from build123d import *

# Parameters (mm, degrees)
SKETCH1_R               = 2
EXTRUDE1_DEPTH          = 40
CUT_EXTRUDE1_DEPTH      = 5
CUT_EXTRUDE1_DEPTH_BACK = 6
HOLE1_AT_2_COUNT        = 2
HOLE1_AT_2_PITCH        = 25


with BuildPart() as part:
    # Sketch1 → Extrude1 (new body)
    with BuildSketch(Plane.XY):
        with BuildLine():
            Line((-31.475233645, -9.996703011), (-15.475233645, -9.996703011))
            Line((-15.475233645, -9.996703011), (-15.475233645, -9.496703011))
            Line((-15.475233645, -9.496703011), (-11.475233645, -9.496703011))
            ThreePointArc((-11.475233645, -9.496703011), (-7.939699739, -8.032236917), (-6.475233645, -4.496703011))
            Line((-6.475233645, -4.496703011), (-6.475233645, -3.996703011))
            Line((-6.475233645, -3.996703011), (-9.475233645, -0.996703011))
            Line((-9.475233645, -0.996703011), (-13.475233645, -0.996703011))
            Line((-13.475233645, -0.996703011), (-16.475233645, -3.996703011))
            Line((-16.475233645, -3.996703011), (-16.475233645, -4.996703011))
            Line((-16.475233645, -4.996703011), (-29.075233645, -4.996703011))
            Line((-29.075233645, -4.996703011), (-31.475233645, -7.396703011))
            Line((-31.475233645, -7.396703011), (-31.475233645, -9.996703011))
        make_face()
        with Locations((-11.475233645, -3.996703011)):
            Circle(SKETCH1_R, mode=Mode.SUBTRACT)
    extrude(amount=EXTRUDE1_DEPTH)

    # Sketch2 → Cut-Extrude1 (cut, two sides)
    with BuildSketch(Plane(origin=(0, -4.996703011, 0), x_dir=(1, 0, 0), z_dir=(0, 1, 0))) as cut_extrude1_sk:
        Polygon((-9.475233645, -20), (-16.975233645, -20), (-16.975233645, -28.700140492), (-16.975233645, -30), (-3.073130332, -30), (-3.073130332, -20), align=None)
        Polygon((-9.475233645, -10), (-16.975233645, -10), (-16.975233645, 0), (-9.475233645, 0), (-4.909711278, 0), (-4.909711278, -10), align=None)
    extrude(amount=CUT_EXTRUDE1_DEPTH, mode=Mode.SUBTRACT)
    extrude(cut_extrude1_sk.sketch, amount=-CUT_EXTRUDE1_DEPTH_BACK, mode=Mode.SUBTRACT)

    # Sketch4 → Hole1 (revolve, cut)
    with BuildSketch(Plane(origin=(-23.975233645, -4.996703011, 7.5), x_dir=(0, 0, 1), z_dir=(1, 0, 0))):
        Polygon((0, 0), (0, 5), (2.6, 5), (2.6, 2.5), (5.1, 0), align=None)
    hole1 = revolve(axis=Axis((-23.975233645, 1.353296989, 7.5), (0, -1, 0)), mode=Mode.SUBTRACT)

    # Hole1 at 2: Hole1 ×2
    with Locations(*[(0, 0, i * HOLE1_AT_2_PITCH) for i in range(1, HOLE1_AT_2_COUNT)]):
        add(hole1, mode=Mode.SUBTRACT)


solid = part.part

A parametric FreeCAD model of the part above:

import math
import FreeCAD as App
import Part
import Sketcher

V = App.Vector
Q = App.Units.Quantity

doc = App.newDocument("Part")
body = doc.addObject("PartDesign::Body", "Body")

# Sketch on XY plane
sketch1 = body.newObject("Sketcher::SketchObject", "Sketch")
sketch1.AttachmentSupport = (doc.getObject("XY_Plane"), [""])
sketch1.MapMode = "FlatFace"
sketch1.addGeometry([
    Part.LineSegment(V(-31.5, -10, 0), V(-15.5, -10, 0)),  # 0
    Part.LineSegment(V(-15.5, -10, 0), V(-15.5, -9.5, 0)),  # 1
    Part.LineSegment(V(-15.5, -9.5, 0), V(-11.5, -9.5, 0)),  # 2
    Part.ArcOfCircle(Part.Circle(V(-11.5, -4.5, 0), V(0, 0, 1), 5), math.radians(-90), math.radians(0)),  # 3
    Part.LineSegment(V(-6.5, -4.5, 0), V(-6.5, -4, 0)),  # 4
    Part.LineSegment(V(-6.5, -4, 0), V(-9.5, -1, 0)),  # 5
    Part.LineSegment(V(-9.5, -1, 0), V(-13.5, -1, 0)),  # 6
    Part.LineSegment(V(-13.5, -1, 0), V(-16.5, -4, 0)),  # 7
    Part.LineSegment(V(-16.5, -4, 0), V(-16.5, -5, 0)),  # 8
    Part.LineSegment(V(-16.5, -5, 0), V(-29.1, -5, 0)),  # 9
    Part.LineSegment(V(-29.1, -5, 0), V(-31.5, -7.4, 0)),  # 10
    Part.LineSegment(V(-31.5, -7.4, 0), V(-31.5, -10, 0)),  # 11
    Part.Circle(V(-11.5, -4, 0), V(0, 0, 1), 2),  # 12
], False)
sketch1.addConstraint([
    Sketcher.Constraint("Coincident", 0, 2, 1, 1),
    Sketcher.Constraint("Coincident", 1, 2, 2, 1),
    Sketcher.Constraint("Tangent", 2, 2, 3, 1),
    Sketcher.Constraint("Tangent", 3, 2, 4, 1),
    Sketcher.Constraint("Coincident", 4, 2, 5, 1),
    Sketcher.Constraint("Coincident", 5, 2, 6, 1),
    Sketcher.Constraint("Coincident", 6, 2, 7, 1),
    Sketcher.Constraint("Coincident", 7, 2, 8, 1),
    Sketcher.Constraint("Coincident", 8, 2, 9, 1),
    Sketcher.Constraint("Coincident", 9, 2, 10, 1),
    Sketcher.Constraint("Coincident", 10, 2, 11, 1),
    Sketcher.Constraint("Coincident", 11, 2, 0, 1),
    Sketcher.Constraint("Horizontal", 0),
    Sketcher.Constraint("Vertical", 1),
    Sketcher.Constraint("Horizontal", 2),
    Sketcher.Constraint("Vertical", 4),
    Sketcher.Constraint("Horizontal", 6),
    Sketcher.Constraint("Vertical", 8),
    Sketcher.Constraint("Horizontal", 9),
    Sketcher.Constraint("Vertical", 11),
    Sketcher.Constraint("Perpendicular", 5, 7),
    Sketcher.Constraint("Parallel", 7, 10),
    Sketcher.Constraint("Horizontal", 12, 3, 4, 2),
    Sketcher.Constraint("Horizontal", 4, 2, 7, 2),
    Sketcher.Constraint("Vertical", 3, 3, 12, 3),
    Sketcher.Constraint("Equal", 2, 6),
    Sketcher.Constraint("Equal", 1, 4),
    Sketcher.Constraint("Equal", 5, 7),
    Sketcher.Constraint("Diameter", 12, 4.0),
    Sketcher.Constraint("Radius", 3, 5.0),
    Sketcher.Constraint("DistanceX", 0, 1, 0, 2, 16.0),
    Sketcher.Constraint("DistanceX", 2, 1, 2, 2, 4.0),
    Sketcher.Constraint("DistanceY", 8, 2, 8, 1, 1.0),
    Sketcher.Constraint("DistanceX", 9, 2, 9, 1, 12.6),
    Sketcher.Constraint("DistanceY", 1, 1, 1, 2, 0.5),
    Sketcher.Constraint("DistanceY", 11, 2, 11, 1, 2.6),
    Sketcher.Constraint("DistanceX", 3, 3, -1, 1, 11.475234),
    Sketcher.Constraint("DistanceY", 3, 3, -1, 1, 4.496703),
])
pad1 = body.newObject("PartDesign::Pad", "Pad")
pad1.Profile = sketch1
pad1.Length = 40

# Sketch on XZ plane
sketch2 = body.newObject("Sketcher::SketchObject", "Sketch001")
sketch2.AttachmentSupport = (doc.getObject("XZ_Plane"), [""])
sketch2.MapMode = "FlatFace"
sketch2.AttachmentOffset = App.Placement(V(0, 0, 4.996703), App.Rotation())
sketch2.addGeometry([
    Part.LineSegment(V(-17, 20, 0), V(-17, 30, 0)),  # 0
    Part.LineSegment(V(-17, 30, 0), V(-3, 30, 0)),  # 1
    Part.LineSegment(V(-3, 30, 0), V(-3, 20, 0)),  # 2
    Part.LineSegment(V(-3, 20, 0), V(-17, 20, 0)),  # 3
    Part.LineSegment(V(-17, 10, 0), V(-5, 10, 0)),  # 4
    Part.LineSegment(V(-5, 10, 0), V(-5, 0, 0)),  # 5
    Part.LineSegment(V(-5, 0, 0), V(-17, 0, 0)),  # 6
    Part.LineSegment(V(-17, 0, 0), V(-17, 10, 0)),  # 7
], False)
sketch2.addConstraint([
    Sketcher.Constraint("Coincident", 0, 2, 1, 1),
    Sketcher.Constraint("Coincident", 1, 2, 2, 1),
    Sketcher.Constraint("Coincident", 2, 2, 3, 1),
    Sketcher.Constraint("Coincident", 3, 2, 0, 1),
    Sketcher.Constraint("Coincident", 4, 2, 5, 1),
    Sketcher.Constraint("Coincident", 5, 2, 6, 1),
    Sketcher.Constraint("Coincident", 6, 2, 7, 1),
    Sketcher.Constraint("Coincident", 7, 2, 4, 1),
    Sketcher.Constraint("Vertical", 0),
    Sketcher.Constraint("Horizontal", 1),
    Sketcher.Constraint("Vertical", 2),
    Sketcher.Constraint("Horizontal", 3),
    Sketcher.Constraint("Horizontal", 4),
    Sketcher.Constraint("Vertical", 5),
    Sketcher.Constraint("Horizontal", 6),
    Sketcher.Constraint("Vertical", 7),
    Sketcher.Constraint("PointOnObject", 5, 2, -1),
    Sketcher.Constraint("Vertical", 3, 2, 6, 2),
    Sketcher.Constraint("Equal", 2, 5),
    Sketcher.Constraint("DistanceY", 0, 1, 0, 2, 10.0),
    Sketcher.Constraint("DistanceY", -1, 1, 0, 2, 30.0),
    Sketcher.Constraint("DistanceX", 1, 1, 1, 2, 13.902103),
    Sketcher.Constraint("DistanceX", 4, 1, 4, 2, 12.065522),
    Sketcher.Constraint("DistanceX", 1, 2, -1, 1, 3.07313),
])
pocket1 = body.newObject("PartDesign::Pocket", "Pocket")
pocket1.Profile = sketch2
pocket1.Type = "ThroughAll"
pocket1.Midplane = True

# Sketch on YZ plane
sketch3 = body.newObject("Sketcher::SketchObject", "Sketch002")
sketch3.AttachmentSupport = (doc.getObject("YZ_Plane"), [""])
sketch3.MapMode = "FlatFace"
sketch3.AttachmentOffset = App.Placement(V(0, 0, -23.975234), App.Rotation())
sketch3.addGeometry([
    Part.LineSegment(V(-10, 7.5, 0), V(-5, 7.5, 0)),  # 0
    Part.LineSegment(V(-5, 7.5, 0), V(-5, 12.6, 0)),  # 1
    Part.LineSegment(V(-5, 12.6, 0), V(-7.5, 10.1, 0)),  # 2
    Part.LineSegment(V(-7.5, 10.1, 0), V(-10, 10.1, 0)),  # 3
    Part.LineSegment(V(-10, 10.1, 0), V(-10, 7.5, 0)),  # 4
], False)
sketch3.addGeometry(Part.LineSegment(V(-5, 7.5, 0), V(-10, 7.5, 0)), True)  # axis
sketch3.addConstraint([
    Sketcher.Constraint("Coincident", 0, 2, 1, 1),
    Sketcher.Constraint("Coincident", 1, 2, 2, 1),
    Sketcher.Constraint("Coincident", 2, 2, 3, 1),
    Sketcher.Constraint("Coincident", 3, 2, 4, 1),
    Sketcher.Constraint("Coincident", 4, 2, 0, 1),
    Sketcher.Constraint("Horizontal", 0),
    Sketcher.Constraint("Vertical", 1),
    Sketcher.Constraint("Horizontal", 3),
    Sketcher.Constraint("Vertical", 4),
    Sketcher.Constraint("Horizontal", 5),
    Sketcher.Constraint("Coincident", 5, 1, 0, 2),
    Sketcher.Constraint("Vertical", 3, 2, 5, 2),
    Sketcher.Constraint("DistanceX", 0, 1, 0, 2, 5.0),
    Sketcher.Constraint("Angle", 2, Q("-135 deg")),
    Sketcher.Constraint("DistanceX", 3, 2, 3, 1, 2.5),
    Sketcher.Constraint("DistanceY", 1, 1, 1, 2, 5.1),
    Sketcher.Constraint("DistanceY", -1, 1, 0, 2, 7.5),
    Sketcher.Constraint("DistanceX", 0, 2, -1, 1, 4.996703),
])
groove = body.newObject("PartDesign::Groove", "Groove")
groove.Profile = sketch3
groove.ReferenceAxis = (sketch3, ["Axis0"])
groove.Angle = 360
doc.recompute()

linearpattern = body.newObject("PartDesign::LinearPattern", "LinearPattern")
linearpattern.Originals = [groove]
linearpattern.Direction = (doc.getObject("Z_Axis"), [""])
linearpattern.Mode = "offset"
linearpattern.Offset = 25
linearpattern.Occurrences = 2
body.Tip = linearpattern

doc.recompute()
